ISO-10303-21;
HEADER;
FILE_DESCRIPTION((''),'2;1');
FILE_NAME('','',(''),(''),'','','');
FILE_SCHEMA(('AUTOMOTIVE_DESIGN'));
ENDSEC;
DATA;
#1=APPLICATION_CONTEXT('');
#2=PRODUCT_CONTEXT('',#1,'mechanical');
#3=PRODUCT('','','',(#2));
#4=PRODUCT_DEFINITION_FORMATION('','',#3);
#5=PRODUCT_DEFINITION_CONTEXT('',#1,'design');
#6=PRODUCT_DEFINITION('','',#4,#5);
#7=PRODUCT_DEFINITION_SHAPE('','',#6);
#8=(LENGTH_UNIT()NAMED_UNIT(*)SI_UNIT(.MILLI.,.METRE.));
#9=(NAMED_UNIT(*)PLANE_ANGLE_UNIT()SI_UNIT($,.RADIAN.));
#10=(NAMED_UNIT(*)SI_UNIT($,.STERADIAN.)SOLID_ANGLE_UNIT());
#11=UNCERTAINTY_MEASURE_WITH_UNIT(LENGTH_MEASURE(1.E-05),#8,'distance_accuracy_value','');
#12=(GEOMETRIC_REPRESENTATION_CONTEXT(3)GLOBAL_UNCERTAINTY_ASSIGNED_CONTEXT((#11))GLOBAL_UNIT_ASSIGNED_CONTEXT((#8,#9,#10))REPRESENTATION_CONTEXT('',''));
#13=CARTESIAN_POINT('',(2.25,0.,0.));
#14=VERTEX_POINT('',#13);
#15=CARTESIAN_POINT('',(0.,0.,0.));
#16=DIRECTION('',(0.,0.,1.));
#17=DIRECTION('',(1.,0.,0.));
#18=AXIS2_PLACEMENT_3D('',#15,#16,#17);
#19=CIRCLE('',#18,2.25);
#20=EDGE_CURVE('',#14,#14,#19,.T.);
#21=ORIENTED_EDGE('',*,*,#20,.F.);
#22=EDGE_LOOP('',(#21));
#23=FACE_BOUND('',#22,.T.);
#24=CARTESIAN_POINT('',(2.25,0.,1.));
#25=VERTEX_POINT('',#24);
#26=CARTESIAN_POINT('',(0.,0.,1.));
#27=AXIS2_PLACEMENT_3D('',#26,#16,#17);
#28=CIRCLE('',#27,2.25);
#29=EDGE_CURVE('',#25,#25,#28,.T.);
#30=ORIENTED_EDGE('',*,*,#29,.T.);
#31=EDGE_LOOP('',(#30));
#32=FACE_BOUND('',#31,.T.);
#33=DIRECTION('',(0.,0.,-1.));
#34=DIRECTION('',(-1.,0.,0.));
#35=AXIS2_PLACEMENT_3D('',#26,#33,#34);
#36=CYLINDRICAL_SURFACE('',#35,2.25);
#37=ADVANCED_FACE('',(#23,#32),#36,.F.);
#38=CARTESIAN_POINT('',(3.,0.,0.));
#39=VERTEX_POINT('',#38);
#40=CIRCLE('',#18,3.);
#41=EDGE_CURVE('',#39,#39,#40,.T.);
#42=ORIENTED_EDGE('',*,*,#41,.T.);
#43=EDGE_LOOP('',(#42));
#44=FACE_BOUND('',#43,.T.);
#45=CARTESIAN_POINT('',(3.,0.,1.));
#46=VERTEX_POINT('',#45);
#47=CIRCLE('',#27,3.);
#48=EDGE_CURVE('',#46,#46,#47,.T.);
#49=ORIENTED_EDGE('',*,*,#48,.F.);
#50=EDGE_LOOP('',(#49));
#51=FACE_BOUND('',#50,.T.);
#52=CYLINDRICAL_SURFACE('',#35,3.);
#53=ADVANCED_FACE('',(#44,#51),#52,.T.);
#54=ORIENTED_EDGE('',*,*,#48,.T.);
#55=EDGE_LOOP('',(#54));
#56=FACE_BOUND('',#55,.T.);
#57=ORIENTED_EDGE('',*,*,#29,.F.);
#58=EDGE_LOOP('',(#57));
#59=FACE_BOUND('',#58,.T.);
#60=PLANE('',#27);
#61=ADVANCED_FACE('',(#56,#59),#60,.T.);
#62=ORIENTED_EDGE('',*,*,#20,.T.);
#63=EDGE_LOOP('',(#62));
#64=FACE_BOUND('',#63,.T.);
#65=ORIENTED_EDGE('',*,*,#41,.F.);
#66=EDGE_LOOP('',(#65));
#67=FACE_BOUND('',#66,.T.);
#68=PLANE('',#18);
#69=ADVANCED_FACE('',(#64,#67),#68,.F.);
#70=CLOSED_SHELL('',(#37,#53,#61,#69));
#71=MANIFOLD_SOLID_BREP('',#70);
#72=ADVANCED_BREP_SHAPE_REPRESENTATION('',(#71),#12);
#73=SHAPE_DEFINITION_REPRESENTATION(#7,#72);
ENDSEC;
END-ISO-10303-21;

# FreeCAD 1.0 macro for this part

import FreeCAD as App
import Part
import Sketcher

doc = App.newDocument("Part")
body = doc.addObject("PartDesign::Body", "Body")

# Sketch on XY plane
sketch1 = body.newObject("Sketcher::SketchObject", "Sketch")
sketch1.AttachmentSupport = (doc.getObject("XY_Plane"), [""])
sketch1.MapMode = "FlatFace"
sketch1.addGeometry(Part.Circle(App.Vector(0, 0, 0), App.Vector(0, 0, 1), 3), False)
sketch1.addGeometry(Part.Circle(App.Vector(0, 0, 0), App.Vector(0, 0, 1), 2.2), False)
sketch1.addConstraint(Sketcher.Constraint("Coincident", 0, 3, -1, 1))
sketch1.addConstraint(Sketcher.Constraint("Coincident", 1, 3, -1, 1))
sketch1.addConstraint(Sketcher.Constraint("Diameter", 0, 6.0))
sketch1.addConstraint(Sketcher.Constraint("Diameter", 1, 4.5))
pad1 = body.newObject("PartDesign::Pad", "Pad")
pad1.Profile = sketch1
pad1.Length = 1

doc.recompute()
